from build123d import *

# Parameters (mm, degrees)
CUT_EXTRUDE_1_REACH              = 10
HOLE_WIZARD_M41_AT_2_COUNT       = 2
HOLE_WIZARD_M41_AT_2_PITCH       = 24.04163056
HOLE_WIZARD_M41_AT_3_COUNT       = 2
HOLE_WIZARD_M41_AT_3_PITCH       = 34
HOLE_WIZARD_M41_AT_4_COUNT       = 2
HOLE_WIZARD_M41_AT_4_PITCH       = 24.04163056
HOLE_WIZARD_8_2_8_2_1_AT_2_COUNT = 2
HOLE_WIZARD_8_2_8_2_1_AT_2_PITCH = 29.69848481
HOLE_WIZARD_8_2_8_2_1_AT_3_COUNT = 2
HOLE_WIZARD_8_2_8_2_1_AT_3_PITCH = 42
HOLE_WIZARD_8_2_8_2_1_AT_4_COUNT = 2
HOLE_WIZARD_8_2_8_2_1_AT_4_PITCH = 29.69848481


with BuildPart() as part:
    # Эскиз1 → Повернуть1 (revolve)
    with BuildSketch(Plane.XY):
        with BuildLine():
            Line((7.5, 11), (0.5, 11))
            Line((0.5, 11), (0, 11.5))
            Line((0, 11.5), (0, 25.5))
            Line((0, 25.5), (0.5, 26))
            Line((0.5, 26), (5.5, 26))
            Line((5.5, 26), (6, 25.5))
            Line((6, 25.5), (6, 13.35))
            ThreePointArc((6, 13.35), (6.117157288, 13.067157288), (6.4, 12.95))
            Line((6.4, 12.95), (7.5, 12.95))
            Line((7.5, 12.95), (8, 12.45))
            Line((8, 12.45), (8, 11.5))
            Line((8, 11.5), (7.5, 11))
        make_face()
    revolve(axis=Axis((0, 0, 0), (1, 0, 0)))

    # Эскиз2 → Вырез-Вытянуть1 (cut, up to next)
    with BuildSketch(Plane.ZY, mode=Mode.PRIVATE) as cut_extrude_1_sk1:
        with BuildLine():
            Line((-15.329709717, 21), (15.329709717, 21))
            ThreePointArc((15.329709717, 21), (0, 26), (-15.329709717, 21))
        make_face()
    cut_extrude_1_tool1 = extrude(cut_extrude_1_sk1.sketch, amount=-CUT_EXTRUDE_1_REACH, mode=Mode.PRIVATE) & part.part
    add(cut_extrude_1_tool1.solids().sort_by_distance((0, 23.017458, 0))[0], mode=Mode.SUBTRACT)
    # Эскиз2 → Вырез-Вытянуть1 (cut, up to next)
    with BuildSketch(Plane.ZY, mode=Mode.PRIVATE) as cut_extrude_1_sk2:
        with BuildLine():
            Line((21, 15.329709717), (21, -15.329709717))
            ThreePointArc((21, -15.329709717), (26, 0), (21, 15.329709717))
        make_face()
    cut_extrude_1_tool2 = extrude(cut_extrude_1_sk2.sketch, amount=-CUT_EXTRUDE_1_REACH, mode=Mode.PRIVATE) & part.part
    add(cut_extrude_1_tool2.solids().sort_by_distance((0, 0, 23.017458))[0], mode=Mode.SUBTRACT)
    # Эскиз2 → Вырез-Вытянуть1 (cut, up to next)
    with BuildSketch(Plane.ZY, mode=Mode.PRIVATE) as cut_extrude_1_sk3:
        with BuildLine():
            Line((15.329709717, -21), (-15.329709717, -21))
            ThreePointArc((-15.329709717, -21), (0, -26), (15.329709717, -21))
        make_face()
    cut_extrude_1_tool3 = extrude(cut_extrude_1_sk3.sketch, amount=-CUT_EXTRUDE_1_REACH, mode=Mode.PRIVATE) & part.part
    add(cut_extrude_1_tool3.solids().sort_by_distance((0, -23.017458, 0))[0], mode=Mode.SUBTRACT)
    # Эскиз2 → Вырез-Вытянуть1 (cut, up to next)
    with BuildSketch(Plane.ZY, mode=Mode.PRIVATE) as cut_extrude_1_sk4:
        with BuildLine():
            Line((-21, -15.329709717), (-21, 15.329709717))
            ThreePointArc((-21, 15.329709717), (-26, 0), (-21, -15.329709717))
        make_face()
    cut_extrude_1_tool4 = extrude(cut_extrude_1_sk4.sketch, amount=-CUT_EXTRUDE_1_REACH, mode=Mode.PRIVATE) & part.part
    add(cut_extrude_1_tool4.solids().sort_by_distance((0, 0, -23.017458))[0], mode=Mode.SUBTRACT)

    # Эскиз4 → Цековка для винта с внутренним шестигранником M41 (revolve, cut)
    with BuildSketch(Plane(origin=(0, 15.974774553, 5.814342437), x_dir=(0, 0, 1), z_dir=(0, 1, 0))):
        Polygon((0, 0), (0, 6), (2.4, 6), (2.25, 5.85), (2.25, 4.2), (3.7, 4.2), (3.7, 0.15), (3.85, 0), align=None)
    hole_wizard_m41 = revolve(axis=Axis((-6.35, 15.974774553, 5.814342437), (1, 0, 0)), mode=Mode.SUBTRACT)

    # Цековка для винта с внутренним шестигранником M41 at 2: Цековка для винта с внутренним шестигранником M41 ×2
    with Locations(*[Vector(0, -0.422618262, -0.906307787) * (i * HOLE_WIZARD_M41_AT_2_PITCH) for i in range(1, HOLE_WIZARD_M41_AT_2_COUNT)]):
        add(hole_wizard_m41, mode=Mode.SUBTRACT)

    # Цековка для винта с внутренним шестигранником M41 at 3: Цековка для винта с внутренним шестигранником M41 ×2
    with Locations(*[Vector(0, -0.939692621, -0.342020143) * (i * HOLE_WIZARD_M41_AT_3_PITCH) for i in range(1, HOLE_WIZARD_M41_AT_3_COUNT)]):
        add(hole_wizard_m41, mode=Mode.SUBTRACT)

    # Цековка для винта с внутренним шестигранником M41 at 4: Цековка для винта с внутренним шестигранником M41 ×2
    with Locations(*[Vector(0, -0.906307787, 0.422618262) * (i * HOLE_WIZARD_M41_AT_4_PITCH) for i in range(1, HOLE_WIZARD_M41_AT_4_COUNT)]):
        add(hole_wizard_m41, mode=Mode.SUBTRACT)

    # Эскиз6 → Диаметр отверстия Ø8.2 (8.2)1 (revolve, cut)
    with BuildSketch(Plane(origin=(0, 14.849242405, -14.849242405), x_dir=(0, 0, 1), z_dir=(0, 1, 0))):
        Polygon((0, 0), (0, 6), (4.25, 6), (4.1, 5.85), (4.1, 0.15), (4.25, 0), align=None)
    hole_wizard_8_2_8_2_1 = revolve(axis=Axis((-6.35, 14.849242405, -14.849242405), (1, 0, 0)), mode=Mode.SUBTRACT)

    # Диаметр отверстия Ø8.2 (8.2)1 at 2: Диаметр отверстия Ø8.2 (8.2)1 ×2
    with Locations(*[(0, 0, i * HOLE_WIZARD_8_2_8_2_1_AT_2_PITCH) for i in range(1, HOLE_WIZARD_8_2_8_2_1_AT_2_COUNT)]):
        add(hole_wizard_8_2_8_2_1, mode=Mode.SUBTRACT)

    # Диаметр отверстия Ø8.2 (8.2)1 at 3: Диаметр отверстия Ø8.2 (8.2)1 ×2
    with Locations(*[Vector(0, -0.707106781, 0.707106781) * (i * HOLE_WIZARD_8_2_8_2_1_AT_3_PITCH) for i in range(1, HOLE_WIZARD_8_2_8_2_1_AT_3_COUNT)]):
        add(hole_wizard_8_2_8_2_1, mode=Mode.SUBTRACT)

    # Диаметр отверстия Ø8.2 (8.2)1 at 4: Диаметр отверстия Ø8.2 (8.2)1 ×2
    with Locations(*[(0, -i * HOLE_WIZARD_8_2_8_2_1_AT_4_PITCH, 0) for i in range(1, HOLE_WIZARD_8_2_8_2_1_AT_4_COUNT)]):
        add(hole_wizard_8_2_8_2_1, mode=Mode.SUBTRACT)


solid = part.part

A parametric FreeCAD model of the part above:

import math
import FreeCAD as App
import Part
import Sketcher
from FreeCAD import Vector
Q = App.Units.Quantity


def add_polygon(sketch, points):
    """Adds a closed chain of lines whose ends are joined by coincident constraints."""
    first, n = sketch.GeometryCount, len(points)
    for a, b in zip(points, points[1:] + points[:1]):
        sketch.addGeometry(Part.LineSegment(App.Vector(*a, 0), App.Vector(*b, 0)), False)
    for i in range(n):
        sketch.addConstraint(Sketcher.Constraint("Coincident", first + i, 2, first + (i + 1) % n, 1))

doc = App.newDocument("Part")
body = doc.addObject("PartDesign::Body", "Body")

# Sketch on XY plane
sketch1 = body.newObject("Sketcher::SketchObject", "Sketch")
sketch1.AttachmentSupport = (doc.getObject("XY_Plane"), [""])
sketch1.MapMode = "FlatFace"
sketch1.addGeometry([
    Part.LineSegment(Vector(0.5, 11, 0), Vector(7.5, 11, 0)),  # 0
    Part.LineSegment(Vector(7.5, 11, 0), Vector(8, 11.5, 0)),  # 1
    Part.LineSegment(Vector(8, 11.5, 0), Vector(8, 12.45, 0)),  # 2
    Part.LineSegment(Vector(8, 12.45, 0), Vector(7.5, 12.95, 0)),  # 3
    Part.LineSegment(Vector(7.5, 12.95, 0), Vector(6.4, 12.95, 0)),  # 4
    Part.ArcOfCircle(Part.Circle(Vector(6.4, 13.35, 0), Vector(0, 0, 1), 0.4), math.radians(-180), math.radians(-90)),  # 5
    Part.LineSegment(Vector(6, 13.35, 0), Vector(6, 25.5, 0)),  # 6
    Part.LineSegment(Vector(6, 25.5, 0), Vector(5.5, 26, 0)),  # 7
    Part.LineSegment(Vector(5.5, 26, 0), Vector(0.5, 26, 0)),  # 8
    Part.LineSegment(Vector(0.5, 26, 0), Vector(0, 25.5, 0)),  # 9
    Part.LineSegment(Vector(0, 25.5, 0), Vector(0, 11.5, 0)),  # 10
    Part.LineSegment(Vector(0, 11.5, 0), Vector(0.5, 11, 0)),  # 11
], False)
sketch1.addConstraint([
    Sketcher.Constraint("Coincident", 0, 2, 1, 1),
    Sketcher.Constraint("Coincident", 1, 2, 2, 1),
    Sketcher.Constraint("Coincident", 2, 2, 3, 1),
    Sketcher.Constraint("Coincident", 3, 2, 4, 1),
    Sketcher.Constraint("Tangent", 4, 2, 5, 2),
    Sketcher.Constraint("Tangent", 5, 1, 6, 1),
    Sketcher.Constraint("Coincident", 6, 2, 7, 1),
    Sketcher.Constraint("Coincident", 7, 2, 8, 1),
    Sketcher.Constraint("Coincident", 8, 2, 9, 1),
    Sketcher.Constraint("Coincident", 9, 2, 10, 1),
    Sketcher.Constraint("Coincident", 10, 2, 11, 1),
    Sketcher.Constraint("Coincident", 11, 2, 0, 1),
    Sketcher.Constraint("Horizontal", 0),
    Sketcher.Constraint("Vertical", 2),
    Sketcher.Constraint("Horizontal", 4),
    Sketcher.Constraint("Vertical", 6),
    Sketcher.Constraint("Horizontal", 8),
    Sketcher.Constraint("Vertical", 10),
    Sketcher.Constraint("PointOnObject", 9, 2, -2),
    Sketcher.Constraint("Perpendicular", 1, 3),
    Sketcher.Constraint("Parallel", 3, 7),
    Sketcher.Constraint("Perpendicular", 7, 9),
    Sketcher.Constraint("Perpendicular", 9, 11),
    Sketcher.Constraint("Horizontal", 6, 2, 9, 2),
    Sketcher.Constraint("Horizontal", 1, 2, 10, 2),
    Sketcher.Constraint("Vertical", 0, 2, 3, 2),
    Sketcher.Constraint("Vertical", 8, 2, 11, 2),
    Sketcher.Constraint("Equal", 1, 3),
    Sketcher.Constraint("Radius", 5, Q("0.4 mm")),
    Sketcher.Constraint("DistanceX", 0, 1, 0, 2, Q("7 mm")),
    Sketcher.Constraint("DistanceX", 8, 2, 8, 1, Q("5 mm")),
    Sketcher.Constraint("DistanceY", 10, 2, 10, 1, Q("14 mm")),
    Sketcher.Constraint("DistanceX", 4, 2, 4, 1, Q("1.1 mm")),
    Sketcher.Constraint("DistanceY", -1, 1, 0, 2, Q("11 mm")),
    Sketcher.Constraint("DistanceY", 2, 1, 2, 2, Q("0.95 mm")),
])
revolution = body.newObject("PartDesign::Revolution", "Revolution")
revolution.Profile = sketch1
revolution.ReferenceAxis = (sketch1, ["H_Axis"])
revolution.Angle = 360

# Sketch on YZ plane
sketch2 = body.newObject("Sketcher::SketchObject", "Sketch001")
sketch2.AttachmentSupport = (doc.getObject("YZ_Plane"), [""])
sketch2.MapMode = "FlatFace"
sketch2.addGeometry([
    Part.LineSegment(Vector(21, -15, 0), Vector(21, 15, 0)),
    Part.ArcOfCircle(Part.Circle(Vector(0, 0, 0), Vector(0, 0, 1), 26), math.radians(-36), math.radians(36)),
], False)
sketch2.addConstraint([
    Sketcher.Constraint("Coincident", 0, 1, 1, 1),
    Sketcher.Constraint("Coincident", 1, 2, 0, 2),
    Sketcher.Constraint("Vertical", 0),
    Sketcher.Constraint("Coincident", 1, 3, -1, 1),
    Sketcher.Constraint("Radius", 1, Q("26 mm")),
    Sketcher.Constraint("DistanceX", -1, 1, 0, 1, Q("21 mm")),
])
pocket1 = body.newObject("PartDesign::Pocket", "Pocket")
pocket1.Profile = sketch2
pocket1.Type = "UpToFirst"
pocket1.Reversed = True

# Sketch on YZ plane
sketch3 = body.newObject("Sketcher::SketchObject", "Sketch002")
sketch3.AttachmentSupport = (doc.getObject("YZ_Plane"), [""])
sketch3.MapMode = "FlatFace"
sketch3.addGeometry([
    Part.LineSegment(Vector(15, 21, 0), Vector(-15, 21, 0)),
    Part.ArcOfCircle(Part.Circle(Vector(0, 0, 0), Vector(0, 0, 1), 26), math.radians(54), math.radians(126)),
], False)
sketch3.addConstraint([
    Sketcher.Constraint("Coincident", 0, 1, 1, 1),
    Sketcher.Constraint("Coincident", 1, 2, 0, 2),
    Sketcher.Constraint("Horizontal", 0),
    Sketcher.Constraint("Coincident", 1, 3, -1, 1),
    Sketcher.Constraint("Radius", 1, Q("26 mm")),
    Sketcher.Constraint("DistanceY", -1, 1, 0, 1, Q("21 mm")),
])
pocket2 = body.newObject("PartDesign::Pocket", "Pocket001")
pocket2.Profile = sketch3
pocket2.Type = "UpToFirst"
pocket2.Reversed = True

# Sketch on YZ plane
sketch4 = body.newObject("Sketcher::SketchObject", "Sketch003")
sketch4.AttachmentSupport = (doc.getObject("YZ_Plane"), [""])
sketch4.MapMode = "FlatFace"
sketch4.addGeometry([
    Part.LineSegment(Vector(-21, 15, 0), Vector(-21, -15, 0)),
    Part.ArcOfCircle(Part.Circle(Vector(0, 0, 0), Vector(0, 0, 1), 26), math.radians(144), math.radians(216)),
], False)
sketch4.addConstraint([
    Sketcher.Constraint("Coincident", 0, 1, 1, 1),
    Sketcher.Constraint("Coincident", 1, 2, 0, 2),
    Sketcher.Constraint("Vertical", 0),
    Sketcher.Constraint("Coincident", 1, 3, -1, 1),
    Sketcher.Constraint("Radius", 1, Q("26 mm")),
    Sketcher.Constraint("DistanceX", 0, 1, -1, 1, Q("21 mm")),
])
pocket3 = body.newObject("PartDesign::Pocket", "Pocket002")
pocket3.Profile = sketch4
pocket3.Type = "UpToFirst"
pocket3.Reversed = True

# Sketch on YZ plane
sketch5 = body.newObject("Sketcher::SketchObject", "Sketch004")
sketch5.AttachmentSupport = (doc.getObject("YZ_Plane"), [""])
sketch5.MapMode = "FlatFace"
sketch5.addGeometry([
    Part.LineSegment(Vector(-15, -21, 0), Vector(15, -21, 0)),
    Part.ArcOfCircle(Part.Circle(Vector(0, 0, 0), Vector(0, 0, 1), 26), math.radians(-126), math.radians(-54)),
], False)
sketch5.addConstraint([
    Sketcher.Constraint("Coincident", 0, 1, 1, 1),
    Sketcher.Constraint("Coincident", 1, 2, 0, 2),
    Sketcher.Constraint("Horizontal", 0),
    Sketcher.Constraint("Coincident", 1, 3, -1, 1),
    Sketcher.Constraint("Radius", 1, Q("26 mm")),
    Sketcher.Constraint("DistanceY", 0, 1, -1, 1, Q("21 mm")),
])
pocket4 = body.newObject("PartDesign::Pocket", "Pocket003")
pocket4.Profile = sketch5
pocket4.Type = "UpToFirst"
pocket4.Reversed = True

# Sketch on XZ plane
sketch6 = body.newObject("Sketcher::SketchObject", "Sketch005")
sketch6.AttachmentSupport = (doc.getObject("XZ_Plane"), [""])
sketch6.MapMode = "FlatFace"
sketch6.AttachmentOffset = App.Placement(Vector(0, 0, -15.974775), App.Rotation())
add_polygon(sketch6, [(6, 5.81), (0, 5.81), (0, 9.66), (0.15, 9.51), (4.2, 9.51), (4.2, 8.06), (5.85, 8.06), (6, 8.21)])  # lines 0-7
sketch6.addGeometry(Part.LineSegment(Vector(0, 5.81, 0), Vector(6, 5.81, 0)), True)  # axis
sketch6.addConstraint([
    Sketcher.Constraint("Horizontal", 0),
    Sketcher.Constraint("Vertical", 1),
    Sketcher.Constraint("Horizontal", 3),
    Sketcher.Constraint("Vertical", 4),
    Sketcher.Constraint("Horizontal", 5),
    Sketcher.Constraint("Vertical", 7),
    Sketcher.Constraint("Horizontal", 8),
    Sketcher.Constraint("Coincident", 8, 1, 0, 2),
    Sketcher.Constraint("PointOnObject", 0, 2, -2),
    Sketcher.Constraint("Perpendicular", 2, 6),
    Sketcher.Constraint("Vertical", 6, 2, 8, 2),
    Sketcher.Constraint("Equal", 2, 6),
    Sketcher.Constraint("DistanceX", 0, 2, 0, 1, Q("6 mm")),
    Sketcher.Constraint("Angle", 2, Q("-45 deg")),
    Sketcher.Constraint("DistanceY", 7, 2, 7, 1, Q("2.4 mm")),
    Sketcher.Constraint("DistanceX", 3, 1, 3, 2, Q("4.05 mm")),
    Sketcher.Constraint("DistanceX", 5, 1, 5, 2, Q("1.65 mm")),
    Sketcher.Constraint("DistanceY", 1, 1, 1, 2, Q("3.85 mm")),
    Sketcher.Constraint("DistanceY", -1, 1, 0, 2, Q("5.814342 mm")),
])
groove = body.newObject("PartDesign::Groove", "Groove")
groove.Profile = sketch6
groove.ReferenceAxis = (sketch6, ["Axis0"])
groove.Angle = 360
doc.recompute()

datumline = body.newObject("PartDesign::Line", "DatumLine")
datumline.Placement = App.Placement(Vector(0, 0, 0), App.Rotation(Vector(0, 0, 1), Vector(0, -0.422618262, -0.906307787)))
linearpattern = body.newObject("PartDesign::LinearPattern", "LinearPattern")
linearpattern.Originals = [groove]
linearpattern.Direction = (datumline, [""])
linearpattern.Mode = "offset"
linearpattern.Offset = 24.041631
linearpattern.Occurrences = 2
body.Tip = linearpattern
doc.recompute()

datumline2 = body.newObject("PartDesign::Line", "DatumLine001")
datumline2.Placement = App.Placement(Vector(0, 0, 0), App.Rotation(Vector(0, 0, 1), Vector(0, -0.939692621, -0.342020143)))
linearpattern2 = body.newObject("PartDesign::LinearPattern", "LinearPattern001")
linearpattern2.Originals = [groove]
linearpattern2.Direction = (datumline2, [""])
linearpattern2.Mode = "offset"
linearpattern2.Offset = 34
linearpattern2.Occurrences = 2
body.Tip = linearpattern2
doc.recompute()

datumline3 = body.newObject("PartDesign::Line", "DatumLine002")
datumline3.Placement = App.Placement(Vector(0, 0, 0), App.Rotation(Vector(0, 0, 1), Vector(0, -0.906307787, 0.422618262)))
linearpattern3 = body.newObject("PartDesign::LinearPattern", "LinearPattern002")
linearpattern3.Originals = [groove]
linearpattern3.Direction = (datumline3, [""])
linearpattern3.Mode = "offset"
linearpattern3.Offset = 24.041631
linearpattern3.Occurrences = 2
body.Tip = linearpattern3

# Sketch on XZ plane
sketch7 = body.newObject("Sketcher::SketchObject", "Sketch006")
sketch7.AttachmentSupport = (doc.getObject("XZ_Plane"), [""])
sketch7.MapMode = "FlatFace"
sketch7.AttachmentOffset = App.Placement(Vector(0, 0, -14.849242), App.Rotation())
add_polygon(sketch7, [(6, -14.85), (0, -14.85), (0, -10.6), (0.15, -10.75), (5.85, -10.75), (6, -10.6)])  # lines 0-5
sketch7.addGeometry(Part.LineSegment(Vector(0, -14.85, 0), Vector(6, -14.85, 0)), True)  # axis
sketch7.addConstraint([
    Sketcher.Constraint("Horizontal", 0),
    Sketcher.Constraint("Vertical", 1),
    Sketcher.Constraint("Horizontal", 3),
    Sketcher.Constraint("Vertical", 5),
    Sketcher.Constraint("Horizontal", 6),
    Sketcher.Constraint("Coincident", 6, 1, 0, 2),
    Sketcher.Constraint("PointOnObject", 0, 2, -2),
    Sketcher.Constraint("Perpendicular", 2, 4),
    Sketcher.Constraint("Horizontal", 1, 2, 4, 2),
    Sketcher.Constraint("Vertical", 4, 2, 6, 2),
    Sketcher.Constraint("Equal", 2, 4),
    Sketcher.Constraint("DistanceX", 0, 2, 0, 1, Q("6 mm")),
    Sketcher.Constraint("DistanceX", 3, 1, 3, 2, Q("5.7 mm")),
    Sketcher.Constraint("DistanceY", 1, 1, 1, 2, Q("4.25 mm")),
    Sketcher.Constraint("DistanceY", 0, 2, -1, 1, Q("14.849242 mm")),
])
groove2 = body.newObject("PartDesign::Groove", "Groove001")
groove2.Profile = sketch7
groove2.ReferenceAxis = (sketch7, ["Axis0"])
groove2.Angle = 360
doc.recompute()

linearpattern4 = body.newObject("PartDesign::LinearPattern", "LinearPattern003")
linearpattern4.Originals = [groove2]
linearpattern4.Direction = (doc.getObject("Z_Axis"), [""])
linearpattern4.Mode = "offset"
linearpattern4.Offset = 29.698485
linearpattern4.Occurrences = 2
body.Tip = linearpattern4
doc.recompute()

datumline4 = body.newObject("PartDesign::Line", "DatumLine003")
datumline4.Placement = App.Placement(Vector(0, 0, 0), App.Rotation(Vector(0, 0, 1), Vector(0, -0.707106781, 0.707106781)))
linearpattern5 = body.newObject("PartDesign::LinearPattern", "LinearPattern004")
linearpattern5.Originals = [groove2]
linearpattern5.Direction = (datumline4, [""])
linearpattern5.Mode = "offset"
linearpattern5.Offset = 42
linearpattern5.Occurrences = 2
body.Tip = linearpattern5
doc.recompute()

linearpattern6 = body.newObject("PartDesign::LinearPattern", "LinearPattern005")
linearpattern6.Originals = [groove2]
linearpattern6.Direction = (doc.getObject("Y_Axis"), [""])
linearpattern6.Mode = "offset"
linearpattern6.Offset = 29.698485
linearpattern6.Occurrences = 2
linearpattern6.Reversed = True
body.Tip = linearpattern6

doc.recompute()
